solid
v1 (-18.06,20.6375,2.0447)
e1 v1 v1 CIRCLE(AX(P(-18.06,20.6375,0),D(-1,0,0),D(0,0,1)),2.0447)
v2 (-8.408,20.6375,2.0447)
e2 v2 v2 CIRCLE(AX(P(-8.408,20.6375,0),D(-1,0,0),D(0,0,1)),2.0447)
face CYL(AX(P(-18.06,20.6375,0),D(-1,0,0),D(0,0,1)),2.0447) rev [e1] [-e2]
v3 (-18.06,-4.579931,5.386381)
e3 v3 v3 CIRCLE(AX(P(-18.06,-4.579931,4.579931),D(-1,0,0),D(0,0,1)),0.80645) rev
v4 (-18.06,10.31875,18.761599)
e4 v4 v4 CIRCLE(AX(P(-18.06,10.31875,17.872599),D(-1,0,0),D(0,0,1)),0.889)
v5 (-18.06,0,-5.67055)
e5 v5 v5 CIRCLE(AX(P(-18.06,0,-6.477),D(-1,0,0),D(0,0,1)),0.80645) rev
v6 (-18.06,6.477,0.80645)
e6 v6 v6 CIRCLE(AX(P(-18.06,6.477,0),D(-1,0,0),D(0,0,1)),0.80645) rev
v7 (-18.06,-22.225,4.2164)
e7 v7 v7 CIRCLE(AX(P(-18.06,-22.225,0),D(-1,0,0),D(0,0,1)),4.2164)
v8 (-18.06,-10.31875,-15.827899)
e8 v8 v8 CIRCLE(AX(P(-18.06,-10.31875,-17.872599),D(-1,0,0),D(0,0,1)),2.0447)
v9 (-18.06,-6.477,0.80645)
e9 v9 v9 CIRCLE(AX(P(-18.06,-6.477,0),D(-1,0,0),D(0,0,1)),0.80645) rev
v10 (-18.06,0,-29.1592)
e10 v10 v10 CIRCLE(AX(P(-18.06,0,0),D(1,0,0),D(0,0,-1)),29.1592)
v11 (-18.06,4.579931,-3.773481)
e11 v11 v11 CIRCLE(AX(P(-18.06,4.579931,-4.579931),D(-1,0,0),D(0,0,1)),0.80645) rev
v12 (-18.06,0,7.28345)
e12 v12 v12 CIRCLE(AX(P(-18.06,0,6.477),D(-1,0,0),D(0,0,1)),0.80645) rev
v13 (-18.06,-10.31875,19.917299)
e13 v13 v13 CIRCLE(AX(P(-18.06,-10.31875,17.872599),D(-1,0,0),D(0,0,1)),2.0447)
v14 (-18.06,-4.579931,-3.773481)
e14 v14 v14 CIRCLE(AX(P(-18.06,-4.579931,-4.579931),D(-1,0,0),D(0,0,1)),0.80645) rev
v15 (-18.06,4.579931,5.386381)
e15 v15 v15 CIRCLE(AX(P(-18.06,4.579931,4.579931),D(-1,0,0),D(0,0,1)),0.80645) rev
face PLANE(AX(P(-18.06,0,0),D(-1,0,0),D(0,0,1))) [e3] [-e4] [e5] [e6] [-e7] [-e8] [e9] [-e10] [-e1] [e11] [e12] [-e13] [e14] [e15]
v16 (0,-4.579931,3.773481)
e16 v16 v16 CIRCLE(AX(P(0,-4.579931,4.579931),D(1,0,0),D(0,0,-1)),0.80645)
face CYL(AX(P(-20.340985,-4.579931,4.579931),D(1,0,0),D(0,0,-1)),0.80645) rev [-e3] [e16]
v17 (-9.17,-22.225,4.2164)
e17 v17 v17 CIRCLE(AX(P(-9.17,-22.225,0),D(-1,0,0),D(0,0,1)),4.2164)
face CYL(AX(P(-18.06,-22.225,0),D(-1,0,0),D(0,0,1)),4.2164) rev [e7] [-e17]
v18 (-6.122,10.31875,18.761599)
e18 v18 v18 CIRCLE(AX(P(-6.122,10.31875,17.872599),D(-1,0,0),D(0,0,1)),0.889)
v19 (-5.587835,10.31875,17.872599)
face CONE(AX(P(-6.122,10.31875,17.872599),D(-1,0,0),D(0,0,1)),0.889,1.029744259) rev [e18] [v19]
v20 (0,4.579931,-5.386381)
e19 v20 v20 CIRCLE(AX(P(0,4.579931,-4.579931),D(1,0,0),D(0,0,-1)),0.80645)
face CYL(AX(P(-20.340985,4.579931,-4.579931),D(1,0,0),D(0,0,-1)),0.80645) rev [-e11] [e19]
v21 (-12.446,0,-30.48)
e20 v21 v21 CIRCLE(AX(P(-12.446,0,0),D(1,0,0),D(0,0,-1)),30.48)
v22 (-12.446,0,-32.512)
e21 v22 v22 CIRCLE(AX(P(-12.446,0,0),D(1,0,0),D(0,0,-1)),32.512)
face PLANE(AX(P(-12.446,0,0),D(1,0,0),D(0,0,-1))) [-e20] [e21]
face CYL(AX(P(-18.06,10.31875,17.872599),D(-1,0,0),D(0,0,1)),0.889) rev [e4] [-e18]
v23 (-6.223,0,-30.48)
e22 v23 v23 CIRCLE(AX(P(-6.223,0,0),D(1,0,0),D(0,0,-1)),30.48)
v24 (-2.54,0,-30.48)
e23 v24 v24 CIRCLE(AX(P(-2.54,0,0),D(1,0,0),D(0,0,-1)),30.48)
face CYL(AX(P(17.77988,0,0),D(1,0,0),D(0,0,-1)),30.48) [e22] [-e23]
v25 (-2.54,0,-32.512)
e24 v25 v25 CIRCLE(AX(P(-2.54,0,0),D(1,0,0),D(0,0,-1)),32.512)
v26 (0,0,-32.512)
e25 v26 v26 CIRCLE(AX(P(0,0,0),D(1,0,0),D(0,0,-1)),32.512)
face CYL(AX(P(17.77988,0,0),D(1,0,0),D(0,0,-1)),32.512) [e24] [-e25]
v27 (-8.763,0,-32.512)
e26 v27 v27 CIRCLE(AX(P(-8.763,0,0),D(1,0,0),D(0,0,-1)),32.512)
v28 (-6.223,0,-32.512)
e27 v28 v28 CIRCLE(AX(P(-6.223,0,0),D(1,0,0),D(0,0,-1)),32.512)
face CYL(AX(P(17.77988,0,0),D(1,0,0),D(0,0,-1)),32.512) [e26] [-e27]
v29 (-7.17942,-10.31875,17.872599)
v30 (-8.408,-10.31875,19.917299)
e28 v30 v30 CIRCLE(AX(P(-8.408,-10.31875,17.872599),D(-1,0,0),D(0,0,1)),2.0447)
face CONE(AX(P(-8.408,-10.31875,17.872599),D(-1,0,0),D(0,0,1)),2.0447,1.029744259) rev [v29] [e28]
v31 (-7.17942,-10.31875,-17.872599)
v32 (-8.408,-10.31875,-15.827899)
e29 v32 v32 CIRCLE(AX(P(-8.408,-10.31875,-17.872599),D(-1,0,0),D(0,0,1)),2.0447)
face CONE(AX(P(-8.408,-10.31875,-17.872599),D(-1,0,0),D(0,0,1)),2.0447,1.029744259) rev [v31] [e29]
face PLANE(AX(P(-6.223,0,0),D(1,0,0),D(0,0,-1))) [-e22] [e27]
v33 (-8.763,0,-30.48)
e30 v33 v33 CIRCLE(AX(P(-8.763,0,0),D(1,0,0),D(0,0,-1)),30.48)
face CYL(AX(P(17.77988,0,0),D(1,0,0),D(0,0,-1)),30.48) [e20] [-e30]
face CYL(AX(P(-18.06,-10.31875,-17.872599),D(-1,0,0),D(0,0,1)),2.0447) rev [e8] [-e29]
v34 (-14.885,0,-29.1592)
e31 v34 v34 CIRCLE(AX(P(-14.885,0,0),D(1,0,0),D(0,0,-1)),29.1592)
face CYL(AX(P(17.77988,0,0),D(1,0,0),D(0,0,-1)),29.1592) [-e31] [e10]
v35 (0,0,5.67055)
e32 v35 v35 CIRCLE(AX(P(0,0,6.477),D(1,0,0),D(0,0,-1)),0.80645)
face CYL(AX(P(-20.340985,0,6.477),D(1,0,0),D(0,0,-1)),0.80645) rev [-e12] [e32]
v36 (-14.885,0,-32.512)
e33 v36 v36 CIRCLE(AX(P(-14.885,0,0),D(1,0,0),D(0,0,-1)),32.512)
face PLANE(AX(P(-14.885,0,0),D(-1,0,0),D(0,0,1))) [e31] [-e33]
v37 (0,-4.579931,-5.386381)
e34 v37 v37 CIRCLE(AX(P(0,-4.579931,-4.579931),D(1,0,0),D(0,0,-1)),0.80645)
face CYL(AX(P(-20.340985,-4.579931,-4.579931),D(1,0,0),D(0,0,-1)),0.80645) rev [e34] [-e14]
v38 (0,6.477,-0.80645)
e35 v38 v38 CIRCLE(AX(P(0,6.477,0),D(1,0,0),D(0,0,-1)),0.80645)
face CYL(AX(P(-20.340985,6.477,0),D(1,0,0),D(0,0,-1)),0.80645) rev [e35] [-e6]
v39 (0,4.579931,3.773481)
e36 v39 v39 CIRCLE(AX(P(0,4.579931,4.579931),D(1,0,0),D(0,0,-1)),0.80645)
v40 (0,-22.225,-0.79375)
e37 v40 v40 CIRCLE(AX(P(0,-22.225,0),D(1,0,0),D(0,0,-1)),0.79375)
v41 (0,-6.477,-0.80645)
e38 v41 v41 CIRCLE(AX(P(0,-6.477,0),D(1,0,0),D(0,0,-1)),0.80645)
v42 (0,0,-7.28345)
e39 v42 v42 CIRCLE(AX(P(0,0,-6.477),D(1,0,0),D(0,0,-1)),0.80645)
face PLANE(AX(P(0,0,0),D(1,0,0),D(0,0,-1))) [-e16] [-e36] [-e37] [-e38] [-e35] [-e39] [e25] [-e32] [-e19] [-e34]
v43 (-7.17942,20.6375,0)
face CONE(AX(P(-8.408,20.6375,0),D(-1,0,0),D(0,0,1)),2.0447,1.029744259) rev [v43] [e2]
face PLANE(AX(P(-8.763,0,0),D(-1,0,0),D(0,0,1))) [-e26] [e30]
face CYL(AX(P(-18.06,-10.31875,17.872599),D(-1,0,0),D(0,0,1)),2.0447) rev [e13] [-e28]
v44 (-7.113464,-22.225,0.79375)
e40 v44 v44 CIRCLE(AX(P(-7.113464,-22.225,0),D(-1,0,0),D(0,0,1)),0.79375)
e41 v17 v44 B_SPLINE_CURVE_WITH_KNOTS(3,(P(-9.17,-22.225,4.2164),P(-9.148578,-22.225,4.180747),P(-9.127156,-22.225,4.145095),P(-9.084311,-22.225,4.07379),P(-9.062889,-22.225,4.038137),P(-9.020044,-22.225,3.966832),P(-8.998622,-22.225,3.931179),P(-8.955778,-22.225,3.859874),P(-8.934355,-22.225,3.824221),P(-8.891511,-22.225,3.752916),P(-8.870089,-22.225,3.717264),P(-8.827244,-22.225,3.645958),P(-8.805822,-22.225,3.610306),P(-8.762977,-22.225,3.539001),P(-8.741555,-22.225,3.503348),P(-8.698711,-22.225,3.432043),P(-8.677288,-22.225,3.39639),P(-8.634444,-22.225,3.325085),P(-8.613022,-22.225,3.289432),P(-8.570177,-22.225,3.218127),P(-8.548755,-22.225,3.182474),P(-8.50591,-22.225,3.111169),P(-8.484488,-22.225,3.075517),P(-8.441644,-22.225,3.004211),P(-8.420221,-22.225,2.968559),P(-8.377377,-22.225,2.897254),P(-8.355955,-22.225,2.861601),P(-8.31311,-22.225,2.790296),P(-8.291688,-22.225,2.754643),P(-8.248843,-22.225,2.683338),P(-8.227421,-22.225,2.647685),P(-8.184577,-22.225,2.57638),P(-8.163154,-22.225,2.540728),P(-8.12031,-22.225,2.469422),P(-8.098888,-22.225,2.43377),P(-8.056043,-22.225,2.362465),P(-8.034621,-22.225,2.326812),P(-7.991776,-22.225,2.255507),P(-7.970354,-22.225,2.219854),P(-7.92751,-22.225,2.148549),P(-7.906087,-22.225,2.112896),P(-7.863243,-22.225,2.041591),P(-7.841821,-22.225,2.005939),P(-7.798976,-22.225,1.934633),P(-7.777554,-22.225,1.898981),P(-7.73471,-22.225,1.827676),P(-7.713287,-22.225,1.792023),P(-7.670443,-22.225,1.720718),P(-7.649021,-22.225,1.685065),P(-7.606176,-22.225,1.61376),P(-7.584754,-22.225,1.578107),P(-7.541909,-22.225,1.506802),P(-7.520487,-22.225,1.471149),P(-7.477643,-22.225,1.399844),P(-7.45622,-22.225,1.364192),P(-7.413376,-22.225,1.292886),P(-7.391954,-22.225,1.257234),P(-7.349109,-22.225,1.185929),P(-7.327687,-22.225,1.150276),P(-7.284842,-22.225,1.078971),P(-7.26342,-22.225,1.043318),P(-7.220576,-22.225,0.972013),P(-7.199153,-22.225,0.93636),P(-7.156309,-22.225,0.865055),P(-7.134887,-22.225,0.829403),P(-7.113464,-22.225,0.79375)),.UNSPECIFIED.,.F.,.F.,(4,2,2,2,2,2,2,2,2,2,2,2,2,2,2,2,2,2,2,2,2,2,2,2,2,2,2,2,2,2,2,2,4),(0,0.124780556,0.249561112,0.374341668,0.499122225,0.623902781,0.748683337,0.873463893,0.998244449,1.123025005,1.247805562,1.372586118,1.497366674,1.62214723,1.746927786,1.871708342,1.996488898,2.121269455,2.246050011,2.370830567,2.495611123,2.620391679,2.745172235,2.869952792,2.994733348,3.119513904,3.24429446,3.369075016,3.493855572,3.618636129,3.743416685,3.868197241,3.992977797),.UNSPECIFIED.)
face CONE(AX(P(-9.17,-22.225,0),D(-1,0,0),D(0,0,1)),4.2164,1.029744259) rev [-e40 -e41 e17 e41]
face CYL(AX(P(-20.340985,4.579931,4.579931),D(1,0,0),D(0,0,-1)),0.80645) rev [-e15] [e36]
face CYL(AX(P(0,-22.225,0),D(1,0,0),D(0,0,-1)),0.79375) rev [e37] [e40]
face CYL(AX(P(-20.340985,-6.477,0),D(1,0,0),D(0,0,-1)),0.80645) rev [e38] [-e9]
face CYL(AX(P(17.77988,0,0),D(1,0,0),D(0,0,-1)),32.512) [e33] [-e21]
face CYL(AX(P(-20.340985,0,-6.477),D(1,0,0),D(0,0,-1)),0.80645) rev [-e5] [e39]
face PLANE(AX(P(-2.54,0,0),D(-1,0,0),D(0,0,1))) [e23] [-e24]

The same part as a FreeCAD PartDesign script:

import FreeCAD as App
import Part
import Sketcher

V = App.Vector
Q = App.Units.Quantity

doc = App.newDocument("Part")
body = doc.addObject("PartDesign::Body", "Body")

# Sketch on XY plane
sketch1 = body.newObject("Sketcher::SketchObject", "Sketch")
sketch1.AttachmentSupport = (doc.getObject("XY_Plane"), [""])
sketch1.MapMode = "FlatFace"
sketch1.addGeometry([
    Part.LineSegment(V(-12.599, 0, 0), V(0, 0, 0)),  # 0
    Part.LineSegment(V(0, 0, 0), V(0, 32.512, 0)),  # 1
    Part.LineSegment(V(0, 32.512, 0), V(-2.54, 32.512, 0)),  # 2
    Part.LineSegment(V(-2.54, 32.512, 0), V(-2.54, 30.48, 0)),  # 3
    Part.LineSegment(V(-2.54, 30.48, 0), V(-6.223, 30.48, 0)),  # 4
    Part.LineSegment(V(-6.223, 30.48, 0), V(-6.223, 32.512, 0)),  # 5
    Part.LineSegment(V(-6.223, 32.512, 0), V(-8.763, 32.512, 0)),  # 6
    Part.LineSegment(V(-8.763, 32.512, 0), V(-8.763, 30.48, 0)),  # 7
    Part.LineSegment(V(-8.763, 30.48, 0), V(-12.446, 30.48, 0)),  # 8
    Part.LineSegment(V(-12.446, 30.48, 0), V(-12.446, 32.512, 0)),  # 9
    Part.LineSegment(V(-12.446, 32.512, 0), V(-14.885, 32.512, 0)),  # 10
    Part.LineSegment(V(-14.885, 32.512, 0), V(-14.885, 29.1592, 0)),  # 11
    Part.LineSegment(V(-14.885, 29.1592, 0), V(-18.06, 29.1592, 0)),  # 12
    Part.LineSegment(V(-18.06, 29.1592, 0), V(-18.06, 4.7625, 0)),  # 13
    Part.LineSegment(V(-18.06, 4.7625, 0), V(-12.599, 4.7625, 0)),  # 14
    Part.LineSegment(V(-12.599, 4.7625, 0), V(-12.599, 0, 0)),  # 15
], False)
sketch1.addConstraint([
    Sketcher.Constraint("Coincident", 0, 2, 1, 1),
    Sketcher.Constraint("Coincident", 1, 2, 2, 1),
    Sketcher.Constraint("Coincident", 2, 2, 3, 1),
    Sketcher.Constraint("Coincident", 3, 2, 4, 1),
    Sketcher.Constraint("Coincident", 4, 2, 5, 1),
    Sketcher.Constraint("Coincident", 5, 2, 6, 1),
    Sketcher.Constraint("Coincident", 6, 2, 7, 1),
    Sketcher.Constraint("Coincident", 7, 2, 8, 1),
    Sketcher.Constraint("Coincident", 8, 2, 9, 1),
    Sketcher.Constraint("Coincident", 9, 2, 10, 1),
    Sketcher.Constraint("Coincident", 10, 2, 11, 1),
    Sketcher.Constraint("Coincident", 11, 2, 12, 1),
    Sketcher.Constraint("Coincident", 12, 2, 13, 1),
    Sketcher.Constraint("Coincident", 13, 2, 14, 1),
    Sketcher.Constraint("Coincident", 14, 2, 15, 1),
    Sketcher.Constraint("Coincident", 15, 2, 0, 1),
    Sketcher.Constraint("Horizontal", 0),
    Sketcher.Constraint("Vertical", 1),
    Sketcher.Constraint("Horizontal", 2),
    Sketcher.Constraint("Vertical", 3),
    Sketcher.Constraint("Horizontal", 4),
    Sketcher.Constraint("Vertical", 5),
    Sketcher.Constraint("Horizontal", 6),
    Sketcher.Constraint("Vertical", 7),
    Sketcher.Constraint("Horizontal", 8),
    Sketcher.Constraint("Vertical", 9),
    Sketcher.Constraint("Horizontal", 10),
    Sketcher.Constraint("Vertical", 11),
    Sketcher.Constraint("Horizontal", 12),
    Sketcher.Constraint("Vertical", 13),
    Sketcher.Constraint("Horizontal", 14),
    Sketcher.Constraint("Vertical", 15),
    Sketcher.Constraint("Coincident", 0, 2, -1, 1),
    Sketcher.Constraint("Horizontal", 2, 2, 5, 2),
    Sketcher.Constraint("Horizontal", 4, 2, 7, 2),
    Sketcher.Constraint("Horizontal", 6, 2, 9, 2),
    Sketcher.Constraint("Equal", 2, 6),
    Sketcher.Constraint("Equal", 4, 8),
    Sketcher.Constraint("DistanceX", 2, 2, 2, 1, Q("0.1 in")),
    Sketcher.Constraint("DistanceY", 1, 1, 1, 2, Q("1.28 in")),
    Sketcher.Constraint("DistanceY", 3, 2, 3, 1, Q("0.08 in")),
    Sketcher.Constraint("DistanceX", 4, 2, 4, 1, Q("0.145 in")),
    Sketcher.Constraint("DistanceX", 12, 2, 12, 1, Q("0.125 in")),
    Sketcher.Constraint("DistanceX", 14, 1, 14, 2, Q("0.215 in")),
    Sketcher.Constraint("DistanceY", 11, 2, 11, 1, Q("0.132 in")),
    Sketcher.Constraint("DistanceY", 15, 2, 15, 1, Q("0.1875 in")),
    Sketcher.Constraint("DistanceX", 0, 1, 0, 2, 12.599),
])
revolution = body.newObject("PartDesign::Revolution", "Revolution")
revolution.Profile = sketch1
revolution.ReferenceAxis = (sketch1, ["H_Axis"])
revolution.Angle = 360

# Sketch on XZ plane
sketch2 = body.newObject("Sketcher::SketchObject", "Sketch001")
sketch2.AttachmentSupport = (doc.getObject("XZ_Plane"), [""])
sketch2.MapMode = "FlatFace"
sketch2.AttachmentOffset = App.Placement(V(0, 0, -0.8125 * 25.4), App.Rotation())
sketch2.addGeometry([
    Part.LineSegment(V(-7.17942, 0, 0), V(-18.06, 0, 0)),
    Part.LineSegment(V(-18.06, 0, 0), V(-18.06, 2.0447, 0)),
    Part.LineSegment(V(-18.06, 2.0447, 0), V(-8.408, 2.0447, 0)),
    Part.LineSegment(V(-8.408, 2.0447, 0), V(-7.17942, 0, 0)),
], False)
sketch2.addConstraint([
    Sketcher.Constraint("Coincident", 0, 2, 1, 1),
    Sketcher.Constraint("Coincident", 1, 2, 2, 1),
    Sketcher.Constraint("Coincident", 2, 2, 3, 1),
    Sketcher.Constraint("Coincident", 3, 2, 0, 1),
    Sketcher.Constraint("Horizontal", 0),
    Sketcher.Constraint("Vertical", 1),
    Sketcher.Constraint("Horizontal", 2),
    Sketcher.Constraint("PointOnObject", 0, 2, -1),
    Sketcher.Constraint("Angle", 3, Q("-59 deg")),
    Sketcher.Constraint("DistanceX", 2, 1, 2, 2, Q("0.38 in")),
    Sketcher.Constraint("DistanceY", 1, 1, 1, 2, Q("0.0805 in")),
    Sketcher.Constraint("DistanceX", 0, 2, -1, 1, 18.06),
])
groove = body.newObject("PartDesign::Groove", "Groove")
groove.Profile = sketch2
groove.ReferenceAxis = (sketch2, ["H_Axis"])
groove.Angle = 360
doc.recompute()

polarpattern = body.newObject("PartDesign::PolarPattern", "PolarPattern")
polarpattern.Originals = [groove]
polarpattern.Axis = (doc.getObject("X_Axis"), [""])
polarpattern.Angle = 360
polarpattern.Occurrences = 3
body.Tip = polarpattern

# Sketch on YZ plane
sketch3 = body.newObject("Sketcher::SketchObject", "Sketch002")
sketch3.AttachmentSupport = (doc.getObject("YZ_Plane"), [""])
sketch3.MapMode = "FlatFace"
sketch3.AttachmentOffset = App.Placement(V(0, 0, -18.06), App.Rotation())
sketch3.addGeometry(Part.Circle(V(10.31875, 17.872599, 0), V(0, 0, 1), 0.889), False)
sketch3.addConstraint([
    Sketcher.Constraint("Diameter", 0, Q("0.07 in")),
    Sketcher.Constraint("DistanceX", -1, 1, 0, 3, Q("0.40625 in")),
    Sketcher.Constraint("DistanceY", -1, 1, 0, 3, 17.872599),
])
doc.recompute()
hole = body.newObject("PartDesign::Hole", "Hole")
hole.Profile = sketch3
hole.ThreadType = "None"
hole.Diameter = Q("0.07 in")
hole.DepthType = "Dimension"
hole.Depth = Q("0.47 in")
hole.DrillPoint = "Angled"
hole.DrillPointAngle = 118
hole.Reversed = True

# Sketch on YZ plane
sketch4 = body.newObject("Sketcher::SketchObject", "Sketch003")
sketch4.AttachmentSupport = (doc.getObject("YZ_Plane"), [""])
sketch4.MapMode = "FlatFace"
sketch4.AttachmentOffset = App.Placement(V(0, 0, -12.599), App.Rotation())
sketch4.addGeometry(Part.Circle(V(0, 0, 0), V(0, 0, 1), 4.7625), False)
sketch4.addConstraint([
    Sketcher.Constraint("Coincident", 0, 3, -1, 1),
    Sketcher.Constraint("Diameter", 0, Q("0.375 in")),
])
pad1 = body.newObject("PartDesign::Pad", "Pad")
pad1.Profile = sketch4
pad1.Length = Q("0.215 in")
pad1.Reversed = True

# Sketch on YZ plane
sketch5 = body.newObject("Sketcher::SketchObject", "Sketch004")
sketch5.AttachmentSupport = (doc.getObject("YZ_Plane"), [""])
sketch5.MapMode = "FlatFace"
sketch5.addGeometry(Part.Circle(V(6.477, 0, 0), V(0, 0, 1), 0.80645), False)
sketch5.addConstraint([
    Sketcher.Constraint("PointOnObject", 0, 3, -1),
    Sketcher.Constraint("Diameter", 0, Q("0.0635 in")),
    Sketcher.Constraint("DistanceX", -1, 1, 0, 3, Q("0.255 in")),
])
pocket1 = body.newObject("PartDesign::Pocket", "Pocket")
pocket1.Profile = sketch5
pocket1.Type = "UpToFirst"

# Sketch on YZ plane
sketch6 = body.newObject("Sketcher::SketchObject", "Sketch005")
sketch6.AttachmentSupport = (doc.getObject("YZ_Plane"), [""])
sketch6.MapMode = "FlatFace"
sketch6.addGeometry(Part.Circle(V(4.579931, -4.579931, 0), V(0, 0, 1), 0.80645), False)
sketch6.addConstraint([
    Sketcher.Constraint("Diameter", 0, Q("0.0635 in")),
    Sketcher.Constraint("DistanceX", -1, 1, 0, 3, 4.579931),
    Sketcher.Constraint("DistanceY", 0, 3, -1, 1, 4.579931),
])
pocket2 = body.newObject("PartDesign::Pocket", "Pocket001")
pocket2.Profile = sketch6
pocket2.Type = "UpToFirst"

# Sketch on YZ plane
sketch7 = body.newObject("Sketcher::SketchObject", "Sketch006")
sketch7.AttachmentSupport = (doc.getObject("YZ_Plane"), [""])
sketch7.MapMode = "FlatFace"
sketch7.addGeometry(Part.Circle(V(0, -6.477, 0), V(0, 0, 1), 0.80645), False)
sketch7.addConstraint([
    Sketcher.Constraint("PointOnObject", 0, 3, -2),
    Sketcher.Constraint("Diameter", 0, Q("0.0635 in")),
    Sketcher.Constraint("DistanceY", 0, 3, -1, 1, Q("0.255 in")),
])
pocket3 = body.newObject("PartDesign::Pocket", "Pocket002")
pocket3.Profile = sketch7
pocket3.Type = "UpToFirst"

# Sketch on YZ plane
sketch8 = body.newObject("Sketcher::SketchObject", "Sketch007")
sketch8.AttachmentSupport = (doc.getObject("YZ_Plane"), [""])
sketch8.MapMode = "FlatFace"
sketch8.addGeometry(Part.Circle(V(-4.579931, -4.579931, 0), V(0, 0, 1), 0.80645), False)
sketch8.addConstraint([
    Sketcher.Constraint("Diameter", 0, Q("0.0635 in")),
    Sketcher.Constraint("DistanceX", 0, 3, -1, 1, 4.579931),
    Sketcher.Constraint("DistanceY", 0, 3, -1, 1, 4.579931),
])
pocket4 = body.newObject("PartDesign::Pocket", "Pocket003")
pocket4.Profile = sketch8
pocket4.Type = "UpToFirst"

# Sketch on YZ plane
sketch9 = body.newObject("Sketcher::SketchObject", "Sketch008")
sketch9.AttachmentSupport = (doc.getObject("YZ_Plane"), [""])
sketch9.MapMode = "FlatFace"
sketch9.addGeometry(Part.Circle(V(-6.477, 0, 0), V(0, 0, 1), 0.80645), False)
sketch9.addConstraint([
    Sketcher.Constraint("PointOnObject", 0, 3, -1),
    Sketcher.Constraint("Diameter", 0, Q("0.0635 in")),
    Sketcher.Constraint("DistanceX", 0, 3, -1, 1, Q("0.255 in")),
])
pocket5 = body.newObject("PartDesign::Pocket", "Pocket004")
pocket5.Profile = sketch9
pocket5.Type = "UpToFirst"

# Sketch on YZ plane
sketch10 = body.newObject("Sketcher::SketchObject", "Sketch009")
sketch10.AttachmentSupport = (doc.getObject("YZ_Plane"), [""])
sketch10.MapMode = "FlatFace"
sketch10.addGeometry(Part.Circle(V(-4.579931, 4.579931, 0), V(0, 0, 1), 0.80645), False)
sketch10.addConstraint([
    Sketcher.Constraint("Diameter", 0, Q("0.0635 in")),
    Sketcher.Constraint("DistanceX", 0, 3, -1, 1, 4.579931),
    Sketcher.Constraint("DistanceY", -1, 1, 0, 3, 4.579931),
])
pocket6 = body.newObject("PartDesign::Pocket", "Pocket005")
pocket6.Profile = sketch10
pocket6.Type = "UpToFirst"

# Sketch on YZ plane
sketch11 = body.newObject("Sketcher::SketchObject", "Sketch010")
sketch11.AttachmentSupport = (doc.getObject("YZ_Plane"), [""])
sketch11.MapMode = "FlatFace"
sketch11.addGeometry(Part.Circle(V(0, 6.477, 0), V(0, 0, 1), 0.80645), False)
sketch11.addConstraint([
    Sketcher.Constraint("PointOnObject", 0, 3, -2),
    Sketcher.Constraint("Diameter", 0, Q("0.0635 in")),
    Sketcher.Constraint("DistanceY", -1, 1, 0, 3, Q("0.255 in")),
])
pocket7 = body.newObject("PartDesign::Pocket", "Pocket006")
pocket7.Profile = sketch11
pocket7.Type = "UpToFirst"

# Sketch on YZ plane
sketch12 = body.newObject("Sketcher::SketchObject", "Sketch011")
sketch12.AttachmentSupport = (doc.getObject("YZ_Plane"), [""])
sketch12.MapMode = "FlatFace"
sketch12.addGeometry(Part.Circle(V(4.579931, 4.579931, 0), V(0, 0, 1), 0.80645), False)
sketch12.addConstraint([
    Sketcher.Constraint("Diameter", 0, Q("0.0635 in")),
    Sketcher.Constraint("DistanceX", -1, 1, 0, 3, 4.579931),
    Sketcher.Constraint("DistanceY", -1, 1, 0, 3, 4.579931),
])
pocket8 = body.newObject("PartDesign::Pocket", "Pocket007")
pocket8.Profile = sketch12
pocket8.Type = "UpToFirst"

# Sketch on YZ plane
sketch13 = body.newObject("Sketcher::SketchObject", "Sketch012")
sketch13.AttachmentSupport = (doc.getObject("YZ_Plane"), [""])
sketch13.MapMode = "FlatFace"
sketch13.addGeometry(Part.Circle(V(-22.225, 0, 0), V(0, 0, 1), 0.79375), False)
sketch13.addConstraint([
    Sketcher.Constraint("PointOnObject", 0, 3, -1),
    Sketcher.Constraint("Diameter", 0, Q("0.0625 in")),
    Sketcher.Constraint("DistanceX", 0, 3, -1, 1, Q("0.875 in")),
])
doc.recompute()
hole2 = body.newObject("PartDesign::Hole", "Hole001")
hole2.Profile = sketch13
hole2.ThreadType = "None"
hole2.Diameter = Q("0.0625 in")
hole2.DepthType = "ThroughAll"

# Sketch on YZ plane
sketch14 = body.newObject("Sketcher::SketchObject", "Sketch013")
sketch14.AttachmentSupport = (doc.getObject("YZ_Plane"), [""])
sketch14.MapMode = "FlatFace"
sketch14.AttachmentOffset = App.Placement(V(0, 0, -18.06), App.Rotation())
sketch14.addGeometry(Part.Circle(V(-22.225, 0, 0), V(0, 0, 1), 4.2164), False)
sketch14.addConstraint([
    Sketcher.Constraint("PointOnObject", 0, 3, -1),
    Sketcher.Constraint("Diameter", 0, Q("0.332 in")),
    Sketcher.Constraint("DistanceX", 0, 3, -1, 1, Q("0.875 in")),
])
doc.recompute()
hole3 = body.newObject("PartDesign::Hole", "Hole002")
hole3.Profile = sketch14
hole3.ThreadType = "None"
hole3.Diameter = Q("0.332 in")
hole3.DepthType = "Dimension"
hole3.Depth = Q("0.35 in")
hole3.DrillPoint = "Angled"
hole3.DrillPointAngle = 118
hole3.Reversed = True

doc.recompute()
